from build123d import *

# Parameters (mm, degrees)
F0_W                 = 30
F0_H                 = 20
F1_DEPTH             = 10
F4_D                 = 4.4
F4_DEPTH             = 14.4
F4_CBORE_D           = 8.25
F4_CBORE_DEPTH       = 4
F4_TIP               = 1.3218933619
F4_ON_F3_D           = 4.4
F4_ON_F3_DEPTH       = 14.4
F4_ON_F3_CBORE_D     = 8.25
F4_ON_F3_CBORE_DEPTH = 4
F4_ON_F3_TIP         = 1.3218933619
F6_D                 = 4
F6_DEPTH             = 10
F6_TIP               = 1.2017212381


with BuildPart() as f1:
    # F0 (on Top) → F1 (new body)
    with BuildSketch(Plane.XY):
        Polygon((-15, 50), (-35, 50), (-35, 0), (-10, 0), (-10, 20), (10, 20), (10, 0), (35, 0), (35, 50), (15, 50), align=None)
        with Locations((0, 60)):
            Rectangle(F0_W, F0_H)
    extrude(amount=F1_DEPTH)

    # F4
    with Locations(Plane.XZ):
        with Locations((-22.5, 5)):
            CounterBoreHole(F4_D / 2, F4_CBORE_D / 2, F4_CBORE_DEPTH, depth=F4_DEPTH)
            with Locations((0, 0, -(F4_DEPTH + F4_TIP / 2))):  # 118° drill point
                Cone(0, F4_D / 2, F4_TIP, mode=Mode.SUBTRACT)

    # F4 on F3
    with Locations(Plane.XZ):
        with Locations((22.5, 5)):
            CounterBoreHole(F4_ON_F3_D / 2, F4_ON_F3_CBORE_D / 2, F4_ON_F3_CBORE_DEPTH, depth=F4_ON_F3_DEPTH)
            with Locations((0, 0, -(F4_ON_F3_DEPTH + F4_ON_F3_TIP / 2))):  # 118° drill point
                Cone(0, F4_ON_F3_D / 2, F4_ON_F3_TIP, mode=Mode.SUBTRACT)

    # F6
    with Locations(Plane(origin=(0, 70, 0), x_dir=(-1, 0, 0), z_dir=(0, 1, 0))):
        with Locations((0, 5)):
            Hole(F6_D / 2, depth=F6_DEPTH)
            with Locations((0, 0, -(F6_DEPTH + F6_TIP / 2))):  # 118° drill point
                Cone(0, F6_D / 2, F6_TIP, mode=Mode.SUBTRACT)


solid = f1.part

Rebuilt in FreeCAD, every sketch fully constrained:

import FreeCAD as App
import Part
import Sketcher


def add_polygon(sketch, points):
    """Adds a closed chain of lines whose ends are joined by coincident constraints."""
    first, n = sketch.GeometryCount, len(points)
    for a, b in zip(points, points[1:] + points[:1]):
        sketch.addGeometry(Part.LineSegment(App.Vector(*a, 0), App.Vector(*b, 0)), False)
    for i in range(n):
        sketch.addConstraint(Sketcher.Constraint("Coincident", first + i, 2, first + (i + 1) % n, 1))

doc = App.newDocument("Part")
body = doc.addObject("PartDesign::Body", "Body")

sketch1 = body.newObject("Sketcher::SketchObject", "Sketch")
sketch1.AttachmentSupport = (doc.getObject("XY_Plane"), [""])
sketch1.MapMode = "FlatFace"
add_polygon(sketch1, [(-35, 50), (-35, 0), (-10, 0), (-10, 20), (10, 20), (10, 0), (35, 0), (35, 50), (15, 50), (15, 70), (-15, 70), (-15, 50)])
sketch1.addConstraint([
    Sketcher.Constraint("Vertical", 0),
    Sketcher.Constraint("Horizontal", 1),
    Sketcher.Constraint("Vertical", 2),
    Sketcher.Constraint("Horizontal", 3),
    Sketcher.Constraint("Vertical", 4),
    Sketcher.Constraint("Horizontal", 5),
    Sketcher.Constraint("Vertical", 6),
    Sketcher.Constraint("Horizontal", 7),
    Sketcher.Constraint("Vertical", 8),
    Sketcher.Constraint("Horizontal", 9),
    Sketcher.Constraint("Vertical", 10),
    Sketcher.Constraint("Horizontal", 11),
    Sketcher.Constraint("Symmetric", 1, 2, 4, 2, -1, 1),
    Sketcher.Constraint("Symmetric", 0, 2, 5, 2, -2),
    Sketcher.Constraint("Symmetric", 7, 2, 10, 2, -2),
    Sketcher.Constraint("Equal", 3, 7),
    Sketcher.Constraint("Equal", 11, 2),
    Sketcher.Constraint("Equal", 4, 8),
    Sketcher.Constraint("DistanceX", 1, 1, 1, 2, 25.0),
    Sketcher.Constraint("DistanceX", 3, 1, 3, 2, 20.0),
    Sketcher.Constraint("DistanceY", 0, 2, 0, 1, 50.0),
])
pad1 = body.newObject("PartDesign::Pad", "Pad")
pad1.Profile = sketch1
pad1.Length = 10

sketch2 = body.newObject("Sketcher::SketchObject", "Sketch001")
sketch2.AttachmentSupport = (doc.getObject("XZ_Plane"), [""])
sketch2.MapMode = "FlatFace"
sketch2.addGeometry(Part.Circle(App.Vector(-22.5, 5, 0), App.Vector(0, 0, 1), 2.2), False)
sketch2.addConstraint([
    Sketcher.Constraint("Diameter", 0, 4.4),
    Sketcher.Constraint("DistanceY", -1, 1, 0, 3, 5.0),
    Sketcher.Constraint("DistanceX", 0, 3, -1, 1, 22.5),
])
doc.recompute()
hole = body.newObject("PartDesign::Hole", "Hole")
hole.Profile = sketch2
hole.ThreadType = "None"
hole.Diameter = 4.4
hole.DepthType = "Dimension"
hole.Depth = 14.4
hole.DrillPoint = "Angled"
hole.DrillPointAngle = 118
hole.HoleCutType = "Counterbore"
hole.HoleCutDiameter = 8.25
hole.HoleCutDepth = 4

sketch3 = body.newObject("Sketcher::SketchObject", "Sketch002")
sketch3.AttachmentSupport = (doc.getObject("XZ_Plane"), [""])
sketch3.MapMode = "FlatFace"
sketch3.addGeometry(Part.Circle(App.Vector(22.5, 5, 0), App.Vector(0, 0, 1), 2.2), False)
sketch3.addConstraint([
    Sketcher.Constraint("Diameter", 0, 4.4),
    Sketcher.Constraint("DistanceY", -1, 1, 0, 3, 5.0),
    Sketcher.Constraint("DistanceX", -1, 1, 0, 3, 22.5),
])
doc.recompute()
hole2 = body.newObject("PartDesign::Hole", "Hole001")
hole2.Profile = sketch3
hole2.ThreadType = "None"
hole2.Diameter = 4.4
hole2.DepthType = "Dimension"
hole2.Depth = 14.4
hole2.DrillPoint = "Angled"
hole2.DrillPointAngle = 118
hole2.HoleCutType = "Counterbore"
hole2.HoleCutDiameter = 8.25
hole2.HoleCutDepth = 4

sketch4 = body.newObject("Sketcher::SketchObject", "Sketch003")
sketch4.AttachmentSupport = (doc.getObject("XZ_Plane"), [""])
sketch4.MapMode = "FlatFace"
sketch4.AttachmentOffset = App.Placement(App.Vector(0, 0, -70), App.Rotation())
sketch4.addGeometry(Part.Circle(App.Vector(0, 5, 0), App.Vector(0, 0, 1), 2), False)
sketch4.addConstraint([
    Sketcher.Constraint("PointOnObject", 0, 3, -2),
    Sketcher.Constraint("Diameter", 0, 4.0),
    Sketcher.Constraint("DistanceY", -1, 1, 0, 3, 5.0),
])
doc.recompute()
hole3 = body.newObject("PartDesign::Hole", "Hole002")
hole3.Profile = sketch4
hole3.ThreadType = "None"
hole3.Diameter = 4
hole3.DepthType = "Dimension"
hole3.Depth = 10
hole3.DrillPoint = "Angled"
hole3.DrillPointAngle = 118
hole3.Reversed = True

doc.recompute()
